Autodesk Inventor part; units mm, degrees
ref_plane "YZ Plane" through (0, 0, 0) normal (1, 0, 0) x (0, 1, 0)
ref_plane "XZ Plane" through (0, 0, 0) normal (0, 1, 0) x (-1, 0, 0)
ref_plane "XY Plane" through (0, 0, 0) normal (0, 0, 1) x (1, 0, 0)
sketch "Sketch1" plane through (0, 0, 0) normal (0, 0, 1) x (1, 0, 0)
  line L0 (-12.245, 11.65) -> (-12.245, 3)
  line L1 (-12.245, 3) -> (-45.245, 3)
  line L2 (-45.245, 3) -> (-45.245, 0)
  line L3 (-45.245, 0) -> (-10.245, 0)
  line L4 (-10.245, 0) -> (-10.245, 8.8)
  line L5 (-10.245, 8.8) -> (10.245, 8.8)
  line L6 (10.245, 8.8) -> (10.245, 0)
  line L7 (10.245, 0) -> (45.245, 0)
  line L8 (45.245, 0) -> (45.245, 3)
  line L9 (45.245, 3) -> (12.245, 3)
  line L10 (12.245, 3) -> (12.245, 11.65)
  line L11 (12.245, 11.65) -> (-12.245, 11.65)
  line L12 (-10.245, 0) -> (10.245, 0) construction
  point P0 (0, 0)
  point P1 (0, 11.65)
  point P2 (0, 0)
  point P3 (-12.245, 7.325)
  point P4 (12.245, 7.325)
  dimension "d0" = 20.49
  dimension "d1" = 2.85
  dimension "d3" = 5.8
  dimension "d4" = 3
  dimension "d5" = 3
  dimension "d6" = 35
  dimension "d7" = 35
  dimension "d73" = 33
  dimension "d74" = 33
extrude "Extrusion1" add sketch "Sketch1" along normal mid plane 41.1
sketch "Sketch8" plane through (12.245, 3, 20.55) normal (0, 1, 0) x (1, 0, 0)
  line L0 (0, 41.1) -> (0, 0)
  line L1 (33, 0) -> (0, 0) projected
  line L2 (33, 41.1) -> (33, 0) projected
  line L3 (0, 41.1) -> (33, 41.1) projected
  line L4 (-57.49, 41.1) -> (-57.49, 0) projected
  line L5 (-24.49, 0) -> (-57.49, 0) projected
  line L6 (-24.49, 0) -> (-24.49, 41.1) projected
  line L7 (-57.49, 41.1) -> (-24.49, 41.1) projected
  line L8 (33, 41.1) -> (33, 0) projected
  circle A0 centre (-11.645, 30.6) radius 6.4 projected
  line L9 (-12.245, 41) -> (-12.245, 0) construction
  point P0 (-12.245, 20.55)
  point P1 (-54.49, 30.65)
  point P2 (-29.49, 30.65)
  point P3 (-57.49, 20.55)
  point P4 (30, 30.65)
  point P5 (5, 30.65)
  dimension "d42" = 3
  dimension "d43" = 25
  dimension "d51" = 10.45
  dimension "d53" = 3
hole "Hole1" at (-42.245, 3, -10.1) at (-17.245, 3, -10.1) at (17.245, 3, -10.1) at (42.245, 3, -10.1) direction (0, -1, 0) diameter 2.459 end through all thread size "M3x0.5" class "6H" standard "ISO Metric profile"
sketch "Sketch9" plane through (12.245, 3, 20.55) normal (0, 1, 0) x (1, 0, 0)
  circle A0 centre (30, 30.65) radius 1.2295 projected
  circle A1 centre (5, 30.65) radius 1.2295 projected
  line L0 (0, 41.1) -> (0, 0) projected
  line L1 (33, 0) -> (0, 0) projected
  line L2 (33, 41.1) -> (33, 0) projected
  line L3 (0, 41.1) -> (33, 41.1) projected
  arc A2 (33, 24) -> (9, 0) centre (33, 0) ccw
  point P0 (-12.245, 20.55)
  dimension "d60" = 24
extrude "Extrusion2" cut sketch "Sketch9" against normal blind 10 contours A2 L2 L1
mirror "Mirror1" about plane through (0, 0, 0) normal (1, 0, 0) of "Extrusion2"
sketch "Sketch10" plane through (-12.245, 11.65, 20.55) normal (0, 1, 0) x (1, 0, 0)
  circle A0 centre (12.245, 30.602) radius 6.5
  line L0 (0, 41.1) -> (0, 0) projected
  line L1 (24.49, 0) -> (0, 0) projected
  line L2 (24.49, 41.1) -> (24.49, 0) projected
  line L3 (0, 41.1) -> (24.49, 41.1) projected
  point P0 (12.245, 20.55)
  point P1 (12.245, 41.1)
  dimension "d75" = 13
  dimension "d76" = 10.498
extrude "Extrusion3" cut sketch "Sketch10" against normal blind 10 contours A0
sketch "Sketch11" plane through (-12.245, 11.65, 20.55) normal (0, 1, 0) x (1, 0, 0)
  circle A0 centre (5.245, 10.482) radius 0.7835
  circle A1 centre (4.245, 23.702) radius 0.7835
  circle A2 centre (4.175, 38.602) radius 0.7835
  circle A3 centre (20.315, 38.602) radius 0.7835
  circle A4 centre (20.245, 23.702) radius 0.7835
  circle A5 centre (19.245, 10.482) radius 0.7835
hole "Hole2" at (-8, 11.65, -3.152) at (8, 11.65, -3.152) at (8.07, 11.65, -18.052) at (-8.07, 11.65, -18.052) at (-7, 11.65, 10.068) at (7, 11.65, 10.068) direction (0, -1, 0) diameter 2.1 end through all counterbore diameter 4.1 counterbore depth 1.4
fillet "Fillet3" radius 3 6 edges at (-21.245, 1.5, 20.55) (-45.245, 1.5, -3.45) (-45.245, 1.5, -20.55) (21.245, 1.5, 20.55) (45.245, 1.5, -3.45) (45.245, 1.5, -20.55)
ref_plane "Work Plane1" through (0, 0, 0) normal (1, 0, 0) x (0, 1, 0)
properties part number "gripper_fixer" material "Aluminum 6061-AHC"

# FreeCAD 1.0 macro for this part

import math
import FreeCAD as App
import Part
import Sketcher

V = App.Vector


def edges_at(feature, points):
    """Names of the edges that pass closest to the given points."""
    edges = feature.Shape.Edges
    near = lambda p: min(range(len(edges)), key=lambda i: edges[i].distToShape(Part.Vertex(*p))[0])
    return sorted({f"Edge{near(p) + 1}" for p in points})

doc = App.newDocument("Part")
body = doc.addObject("PartDesign::Body", "Body")

# Sketch on XY plane
sketch1 = doc.addObject("Sketcher::SketchObject", "Sketch")
body.addObject(sketch1)
sketch1.AttachmentSupport = (doc.XY_Plane, [""])
sketch1.MapMode = "FlatFace"
sketch1.addGeometry(Part.LineSegment(V(12.245, 11.65, 0), V(-12.245, 11.65, 0)), False)
sketch1.addGeometry(Part.LineSegment(V(-12.245, 11.65, 0), V(-12.245, 3, 0)), False)
sketch1.addGeometry(Part.LineSegment(V(-12.245, 3, 0), V(-45.245, 3, 0)), False)
sketch1.addGeometry(Part.LineSegment(V(-45.245, 3, 0), V(-45.245, 0, 0)), False)
sketch1.addGeometry(Part.LineSegment(V(-45.245, 0, 0), V(-10.245, 0, 0)), False)
sketch1.addGeometry(Part.LineSegment(V(-10.245, 0, 0), V(-10.245, 8.8, 0)), False)
sketch1.addGeometry(Part.LineSegment(V(-10.245, 8.8, 0), V(10.245, 8.8, 0)), False)
sketch1.addGeometry(Part.LineSegment(V(10.245, 8.8, 0), V(10.245, 0, 0)), False)
sketch1.addGeometry(Part.LineSegment(V(10.245, 0, 0), V(45.245, 0, 0)), False)
sketch1.addGeometry(Part.LineSegment(V(45.245, 0, 0), V(45.245, 3, 0)), False)
sketch1.addGeometry(Part.LineSegment(V(45.245, 3, 0), V(12.245, 3, 0)), False)
sketch1.addGeometry(Part.LineSegment(V(12.245, 3, 0), V(12.245, 11.65, 0)), False)
sketch1.addConstraint(Sketcher.Constraint("Coincident", 0, 2, 1, 1))
sketch1.addConstraint(Sketcher.Constraint("Coincident", 1, 2, 2, 1))
sketch1.addConstraint(Sketcher.Constraint("Coincident", 2, 2, 3, 1))
sketch1.addConstraint(Sketcher.Constraint("Coincident", 3, 2, 4, 1))
sketch1.addConstraint(Sketcher.Constraint("Coincident", 4, 2, 5, 1))
sketch1.addConstraint(Sketcher.Constraint("Coincident", 5, 2, 6, 1))
sketch1.addConstraint(Sketcher.Constraint("Coincident", 6, 2, 7, 1))
sketch1.addConstraint(Sketcher.Constraint("Coincident", 7, 2, 8, 1))
sketch1.addConstraint(Sketcher.Constraint("Coincident", 8, 2, 9, 1))
sketch1.addConstraint(Sketcher.Constraint("Coincident", 9, 2, 10, 1))
sketch1.addConstraint(Sketcher.Constraint("Coincident", 10, 2, 11, 1))
sketch1.addConstraint(Sketcher.Constraint("Coincident", 11, 2, 0, 1))
sketch1.addConstraint(Sketcher.Constraint("Horizontal", 0))
sketch1.addConstraint(Sketcher.Constraint("Vertical", 1))
sketch1.addConstraint(Sketcher.Constraint("Horizontal", 2))
sketch1.addConstraint(Sketcher.Constraint("Vertical", 3))
sketch1.addConstraint(Sketcher.Constraint("Horizontal", 4))
sketch1.addConstraint(Sketcher.Constraint("Vertical", 5))
sketch1.addConstraint(Sketcher.Constraint("Horizontal", 6))
sketch1.addConstraint(Sketcher.Constraint("Vertical", 7))
sketch1.addConstraint(Sketcher.Constraint("Horizontal", 8))
sketch1.addConstraint(Sketcher.Constraint("Vertical", 9))
sketch1.addConstraint(Sketcher.Constraint("Horizontal", 10))
sketch1.addConstraint(Sketcher.Constraint("Vertical", 11))
sketch1.addConstraint(Sketcher.Constraint("Symmetric", 4, 2, 7, 2, -1, 1))
sketch1.addConstraint(Sketcher.Constraint("Symmetric", 3, 2, 8, 2, -2))
sketch1.addConstraint(Sketcher.Constraint("Symmetric", 1, 2, 10, 2, -2))
sketch1.addConstraint(Sketcher.Constraint("DistanceX", 2, 2, 2, 1, 33.0))
sketch1.addConstraint(Sketcher.Constraint("DistanceX", 4, 1, 4, 2, 35.0))
sketch1.addConstraint(Sketcher.Constraint("DistanceY", 3, 2, 3, 1, 3.0))
sketch1.addConstraint(Sketcher.Constraint("DistanceX", 6, 1, 6, 2, 20.49))
sketch1.addConstraint(Sketcher.Constraint("DistanceY", 1, 2, 5, 2, 5.8))
sketch1.addConstraint(Sketcher.Constraint("DistanceY", 5, 2, 0, 2, 2.85))
pad1 = doc.addObject("PartDesign::Pad", "Pad")
body.addObject(pad1)
pad1.Profile = sketch1
pad1.Length = 41.1
pad1.Midplane = True

# Sketch on XZ plane
sketch2 = doc.addObject("Sketcher::SketchObject", "Sketch001")
body.addObject(sketch2)
sketch2.AttachmentSupport = (doc.XZ_Plane, [""])
sketch2.MapMode = "FlatFace"
sketch2.AttachmentOffset = App.Placement(V(0, 0, -3), App.Rotation())
sketch2.addGeometry(Part.Circle(V(-42.245, -10.1, 0), V(0, 0, 1), 1.2295), False)
sketch2.addGeometry(Part.Circle(V(-17.245, -10.1, 0), V(0, 0, 1), 1.2295), False)
sketch2.addGeometry(Part.Circle(V(17.245, -10.1, 0), V(0, 0, 1), 1.2295), False)
sketch2.addGeometry(Part.Circle(V(42.245, -10.1, 0), V(0, 0, 1), 1.2295), False)
sketch2.addConstraint(Sketcher.Constraint("Equal", 0, 1))
sketch2.addConstraint(Sketcher.Constraint("Equal", 1, 2))
sketch2.addConstraint(Sketcher.Constraint("Equal", 2, 3))
sketch2.addConstraint(Sketcher.Constraint("Symmetric", 1, 3, 2, 3, -2))
sketch2.addConstraint(Sketcher.Constraint("Symmetric", 0, 3, 3, 3, -2))
sketch2.addConstraint(Sketcher.Constraint("Horizontal", 0, 3, 1, 3))
sketch2.addConstraint(Sketcher.Constraint("Diameter", 0, 2.459))
sketch2.addConstraint(Sketcher.Constraint("DistanceX", 0, 3, 1, 3, 25.0))
sketch2.addConstraint(Sketcher.Constraint("DistanceY", 0, 3, -1, 1, 10.1))
sketch2.addConstraint(Sketcher.Constraint("DistanceX", 1, 3, 2, 3, 34.49))
doc.recompute()
hole = doc.addObject("PartDesign::Hole", "Hole")
body.addObject(hole)
hole.Profile = sketch2
hole.ThreadType = "None"
hole.Diameter = 2.459
hole.DepthType = "ThroughAll"
hole.Reversed = True

# Sketch on XZ plane
sketch3 = doc.addObject("Sketcher::SketchObject", "Sketch002")
body.addObject(sketch3)
sketch3.AttachmentSupport = (doc.XZ_Plane, [""])
sketch3.MapMode = "FlatFace"
sketch3.AttachmentOffset = App.Placement(V(0, 0, -3), App.Rotation())
sketch3.addGeometry(Part.ArcOfCircle(Part.Circle(V(45.245, 20.55, 0), V(0, 0, 1), 24), math.radians(180), math.radians(270)), False)
sketch3.addGeometry(Part.LineSegment(V(21.245, 20.55, 0), V(45.245, 20.55, 0)), False)
sketch3.addGeometry(Part.LineSegment(V(45.245, 20.55, 0), V(45.245, -3.45, 0)), False)
sketch3.addConstraint(Sketcher.Constraint("Coincident", 0, 1, 1, 1))
sketch3.addConstraint(Sketcher.Constraint("Coincident", 1, 2, 2, 1))
sketch3.addConstraint(Sketcher.Constraint("Coincident", 2, 2, 0, 2))
sketch3.addConstraint(Sketcher.Constraint("Horizontal", 1))
sketch3.addConstraint(Sketcher.Constraint("Vertical", 2))
sketch3.addConstraint(Sketcher.Constraint("Coincident", 1, 2, 0, 3))
sketch3.addConstraint(Sketcher.Constraint("Radius", 0, 24.0))
sketch3.addConstraint(Sketcher.Constraint("DistanceY", -1, 1, 0, 3, 20.55))
sketch3.addConstraint(Sketcher.Constraint("DistanceX", -1, 1, 0, 3, 45.245))
pocket1 = doc.addObject("PartDesign::Pocket", "Pocket")
body.addObject(pocket1)
pocket1.Profile = sketch3
pocket1.Length = 10
pocket1.Reversed = True
doc.recompute()

mirrored = doc.addObject("PartDesign::Mirrored", "Mirrored")
body.addObject(mirrored)
mirrored.Originals = [pocket1]
mirrored.MirrorPlane = (doc.YZ_Plane, [""])
body.Tip = mirrored

# Sketch on XZ plane
sketch4 = doc.addObject("Sketcher::SketchObject", "Sketch003")
body.addObject(sketch4)
sketch4.AttachmentSupport = (doc.XZ_Plane, [""])
sketch4.MapMode = "FlatFace"
sketch4.AttachmentOffset = App.Placement(V(0, 0, -11.65), App.Rotation())
sketch4.addGeometry(Part.Circle(V(0, -10.052, 0), V(0, 0, 1), 6.5), False)
sketch4.addConstraint(Sketcher.Constraint("PointOnObject", 0, 3, -2))
sketch4.addConstraint(Sketcher.Constraint("Diameter", 0, 13.0))
sketch4.addConstraint(Sketcher.Constraint("DistanceY", 0, 3, -1, 1, 10.052))
pocket2 = doc.addObject("PartDesign::Pocket", "Pocket001")
body.addObject(pocket2)
pocket2.Profile = sketch4
pocket2.Length = 10
pocket2.Reversed = True

# Sketch on XZ plane
sketch5 = doc.addObject("Sketcher::SketchObject", "Sketch004")
body.addObject(sketch5)
sketch5.AttachmentSupport = (doc.XZ_Plane, [""])
sketch5.MapMode = "FlatFace"
sketch5.AttachmentOffset = App.Placement(V(0, 0, -11.65), App.Rotation())
sketch5.addGeometry(Part.Circle(V(-8, -3.152, 0), V(0, 0, 1), 1.05), False)
sketch5.addGeometry(Part.Circle(V(8, -3.152, 0), V(0, 0, 1), 1.05), False)
sketch5.addGeometry(Part.Circle(V(8.07, -18.052, 0), V(0, 0, 1), 1.05), False)
sketch5.addGeometry(Part.Circle(V(-8.07, -18.052, 0), V(0, 0, 1), 1.05), False)
sketch5.addGeometry(Part.Circle(V(-7, 10.068, 0), V(0, 0, 1), 1.05), False)
sketch5.addGeometry(Part.Circle(V(7, 10.068, 0), V(0, 0, 1), 1.05), False)
sketch5.addConstraint(Sketcher.Constraint("Equal", 0, 1))
sketch5.addConstraint(Sketcher.Constraint("Equal", 1, 2))
sketch5.addConstraint(Sketcher.Constraint("Equal", 2, 3))
sketch5.addConstraint(Sketcher.Constraint("Equal", 3, 4))
sketch5.addConstraint(Sketcher.Constraint("Equal", 4, 5))
sketch5.addConstraint(Sketcher.Constraint("Symmetric", 0, 3, 1, 3, -2))
sketch5.addConstraint(Sketcher.Constraint("Symmetric", 2, 3, 3, 3, -2))
sketch5.addConstraint(Sketcher.Constraint("Symmetric", 4, 3, 5, 3, -2))
sketch5.addConstraint(Sketcher.Constraint("Diameter", 0, 2.1))
sketch5.addConstraint(Sketcher.Constraint("DistanceX", 0, 3, -1, 1, 8.0))
sketch5.addConstraint(Sketcher.Constraint("DistanceX", 4, 3, -1, 1, 7.0))
sketch5.addConstraint(Sketcher.Constraint("DistanceY", 2, 3, 1, 3, 14.9))
sketch5.addConstraint(Sketcher.Constraint("DistanceX", -1, 1, 2, 3, 8.07))
sketch5.addConstraint(Sketcher.Constraint("DistanceY", 0, 3, 4, 3, 13.22))
sketch5.addConstraint(Sketcher.Constraint("DistanceY", 0, 3, -1, 1, 3.152))
doc.recompute()
hole2 = doc.addObject("PartDesign::Hole", "Hole001")
body.addObject(hole2)
hole2.Profile = sketch5
hole2.ThreadType = "None"
hole2.Diameter = 2.1
hole2.DepthType = "ThroughAll"
hole2.HoleCutType = "Counterbore"
hole2.HoleCutDiameter = 4.1
hole2.HoleCutDepth = 1.4
hole2.Reversed = True
doc.recompute()

fillet = doc.addObject("PartDesign::Fillet", "Fillet")
body.addObject(fillet)
fillet.Base = (hole2, edges_at(hole2, [
    (-21.245, 1.5, 20.55),
    (-45.245, 1.5, -3.45),
    (-45.245, 1.5, -20.55),
    (21.245, 1.5, 20.55),
    (45.245, 1.5, -3.45),
    (45.245, 1.5, -20.55),
]))
fillet.Radius = 3

doc.recompute()
